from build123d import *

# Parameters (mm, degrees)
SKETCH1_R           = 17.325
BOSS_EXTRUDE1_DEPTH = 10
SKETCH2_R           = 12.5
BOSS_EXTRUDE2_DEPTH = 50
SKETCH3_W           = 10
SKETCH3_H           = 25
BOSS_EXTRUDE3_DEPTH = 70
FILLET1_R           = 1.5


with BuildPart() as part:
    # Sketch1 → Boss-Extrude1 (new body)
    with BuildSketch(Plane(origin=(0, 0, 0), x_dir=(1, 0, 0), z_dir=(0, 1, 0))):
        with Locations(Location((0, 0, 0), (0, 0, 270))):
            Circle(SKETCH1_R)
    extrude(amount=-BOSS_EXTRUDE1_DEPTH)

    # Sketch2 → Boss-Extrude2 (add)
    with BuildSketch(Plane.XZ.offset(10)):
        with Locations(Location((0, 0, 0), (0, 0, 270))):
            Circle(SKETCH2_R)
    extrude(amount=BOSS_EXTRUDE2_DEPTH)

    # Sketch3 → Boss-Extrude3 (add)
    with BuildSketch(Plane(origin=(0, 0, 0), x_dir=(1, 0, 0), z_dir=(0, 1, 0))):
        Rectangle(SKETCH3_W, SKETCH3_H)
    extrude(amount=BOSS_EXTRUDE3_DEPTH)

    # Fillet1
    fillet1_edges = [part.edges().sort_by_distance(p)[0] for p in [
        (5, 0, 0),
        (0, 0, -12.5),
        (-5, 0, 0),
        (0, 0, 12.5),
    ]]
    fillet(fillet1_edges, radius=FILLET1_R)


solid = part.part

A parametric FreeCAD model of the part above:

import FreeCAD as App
import Part
import Sketcher
from FreeCAD import Vector
Q = App.Units.Quantity


def edges_at(feature, points):
    """Names of the edges that pass closest to the given points."""
    edges = feature.Shape.Edges
    near = lambda p: min(range(len(edges)), key=lambda i: edges[i].distToShape(Part.Vertex(*p))[0])
    return sorted({f"Edge{near(p) + 1}" for p in points})

doc = App.newDocument("Part")
body = doc.addObject("PartDesign::Body", "Body")

# Sketch on XZ plane
sketch1 = doc.addObject("Sketcher::SketchObject", "Sketch")
body.addObject(sketch1)
sketch1.AttachmentSupport = (doc.XZ_Plane, [""])
sketch1.MapMode = "FlatFace"
sketch1.addGeometry(Part.Circle(Vector(0, 0, 0), Vector(0, 0, 1), 17), False)
sketch1.addConstraint([
    Sketcher.Constraint("Coincident", 0, 3, -1, 1),
    Sketcher.Constraint("Diameter", 0, Q("34.65 mm")),
])
pad1 = doc.addObject("PartDesign::Pad", "Pad")
body.addObject(pad1)
pad1.Profile = sketch1
pad1.Length = 10

# Sketch on XZ plane
sketch2 = doc.addObject("Sketcher::SketchObject", "Sketch001")
body.addObject(sketch2)
sketch2.AttachmentSupport = (doc.XZ_Plane, [""])
sketch2.MapMode = "FlatFace"
sketch2.AttachmentOffset = App.Placement(Vector(0, 0, 10), App.Rotation())
sketch2.addGeometry(Part.Circle(Vector(0, 0, 0), Vector(0, 0, 1), 12), False)
sketch2.addConstraint([
    Sketcher.Constraint("Coincident", 0, 3, -1, 1),
    Sketcher.Constraint("Diameter", 0, Q("25 mm")),
])
pad2 = doc.addObject("PartDesign::Pad", "Pad001")
body.addObject(pad2)
pad2.Profile = sketch2
pad2.Length = 50

# Sketch on XZ plane
sketch3 = doc.addObject("Sketcher::SketchObject", "Sketch002")
body.addObject(sketch3)
sketch3.AttachmentSupport = (doc.XZ_Plane, [""])
sketch3.MapMode = "FlatFace"
sketch3.addGeometry([
    Part.LineSegment(Vector(-5, -12, 0), Vector(-5, 12, 0)),
    Part.LineSegment(Vector(-5, 12, 0), Vector(5, 12, 0)),
    Part.LineSegment(Vector(5, 12, 0), Vector(5, -12, 0)),
    Part.LineSegment(Vector(5, -12, 0), Vector(-5, -12, 0)),
], False)
sketch3.addConstraint([
    Sketcher.Constraint("Coincident", 0, 2, 1, 1),
    Sketcher.Constraint("Coincident", 1, 2, 2, 1),
    Sketcher.Constraint("Coincident", 2, 2, 3, 1),
    Sketcher.Constraint("Coincident", 3, 2, 0, 1),
    Sketcher.Constraint("Vertical", 0),
    Sketcher.Constraint("Horizontal", 1),
    Sketcher.Constraint("Vertical", 2),
    Sketcher.Constraint("Horizontal", 3),
    Sketcher.Constraint("Symmetric", 0, 2, 2, 2, -1, 1),
    Sketcher.Constraint("DistanceX", 1, 1, 1, 2, Q("10 mm")),
    Sketcher.Constraint("DistanceY", 0, 1, 0, 2, Q("25 mm")),
])
pad3 = doc.addObject("PartDesign::Pad", "Pad002")
body.addObject(pad3)
pad3.Profile = sketch3
pad3.Length = 70
pad3.Reversed = True
doc.recompute()

fillet = doc.addObject("PartDesign::Fillet", "Fillet")
body.addObject(fillet)
fillet.Base = (pad3, edges_at(pad3, [
    (5, 0, 0),
    (0, 0, -12.5),
    (-5, 0, 0),
    (0, 0, 12.5),
]))
fillet.Radius = 1.5

doc.recompute()
